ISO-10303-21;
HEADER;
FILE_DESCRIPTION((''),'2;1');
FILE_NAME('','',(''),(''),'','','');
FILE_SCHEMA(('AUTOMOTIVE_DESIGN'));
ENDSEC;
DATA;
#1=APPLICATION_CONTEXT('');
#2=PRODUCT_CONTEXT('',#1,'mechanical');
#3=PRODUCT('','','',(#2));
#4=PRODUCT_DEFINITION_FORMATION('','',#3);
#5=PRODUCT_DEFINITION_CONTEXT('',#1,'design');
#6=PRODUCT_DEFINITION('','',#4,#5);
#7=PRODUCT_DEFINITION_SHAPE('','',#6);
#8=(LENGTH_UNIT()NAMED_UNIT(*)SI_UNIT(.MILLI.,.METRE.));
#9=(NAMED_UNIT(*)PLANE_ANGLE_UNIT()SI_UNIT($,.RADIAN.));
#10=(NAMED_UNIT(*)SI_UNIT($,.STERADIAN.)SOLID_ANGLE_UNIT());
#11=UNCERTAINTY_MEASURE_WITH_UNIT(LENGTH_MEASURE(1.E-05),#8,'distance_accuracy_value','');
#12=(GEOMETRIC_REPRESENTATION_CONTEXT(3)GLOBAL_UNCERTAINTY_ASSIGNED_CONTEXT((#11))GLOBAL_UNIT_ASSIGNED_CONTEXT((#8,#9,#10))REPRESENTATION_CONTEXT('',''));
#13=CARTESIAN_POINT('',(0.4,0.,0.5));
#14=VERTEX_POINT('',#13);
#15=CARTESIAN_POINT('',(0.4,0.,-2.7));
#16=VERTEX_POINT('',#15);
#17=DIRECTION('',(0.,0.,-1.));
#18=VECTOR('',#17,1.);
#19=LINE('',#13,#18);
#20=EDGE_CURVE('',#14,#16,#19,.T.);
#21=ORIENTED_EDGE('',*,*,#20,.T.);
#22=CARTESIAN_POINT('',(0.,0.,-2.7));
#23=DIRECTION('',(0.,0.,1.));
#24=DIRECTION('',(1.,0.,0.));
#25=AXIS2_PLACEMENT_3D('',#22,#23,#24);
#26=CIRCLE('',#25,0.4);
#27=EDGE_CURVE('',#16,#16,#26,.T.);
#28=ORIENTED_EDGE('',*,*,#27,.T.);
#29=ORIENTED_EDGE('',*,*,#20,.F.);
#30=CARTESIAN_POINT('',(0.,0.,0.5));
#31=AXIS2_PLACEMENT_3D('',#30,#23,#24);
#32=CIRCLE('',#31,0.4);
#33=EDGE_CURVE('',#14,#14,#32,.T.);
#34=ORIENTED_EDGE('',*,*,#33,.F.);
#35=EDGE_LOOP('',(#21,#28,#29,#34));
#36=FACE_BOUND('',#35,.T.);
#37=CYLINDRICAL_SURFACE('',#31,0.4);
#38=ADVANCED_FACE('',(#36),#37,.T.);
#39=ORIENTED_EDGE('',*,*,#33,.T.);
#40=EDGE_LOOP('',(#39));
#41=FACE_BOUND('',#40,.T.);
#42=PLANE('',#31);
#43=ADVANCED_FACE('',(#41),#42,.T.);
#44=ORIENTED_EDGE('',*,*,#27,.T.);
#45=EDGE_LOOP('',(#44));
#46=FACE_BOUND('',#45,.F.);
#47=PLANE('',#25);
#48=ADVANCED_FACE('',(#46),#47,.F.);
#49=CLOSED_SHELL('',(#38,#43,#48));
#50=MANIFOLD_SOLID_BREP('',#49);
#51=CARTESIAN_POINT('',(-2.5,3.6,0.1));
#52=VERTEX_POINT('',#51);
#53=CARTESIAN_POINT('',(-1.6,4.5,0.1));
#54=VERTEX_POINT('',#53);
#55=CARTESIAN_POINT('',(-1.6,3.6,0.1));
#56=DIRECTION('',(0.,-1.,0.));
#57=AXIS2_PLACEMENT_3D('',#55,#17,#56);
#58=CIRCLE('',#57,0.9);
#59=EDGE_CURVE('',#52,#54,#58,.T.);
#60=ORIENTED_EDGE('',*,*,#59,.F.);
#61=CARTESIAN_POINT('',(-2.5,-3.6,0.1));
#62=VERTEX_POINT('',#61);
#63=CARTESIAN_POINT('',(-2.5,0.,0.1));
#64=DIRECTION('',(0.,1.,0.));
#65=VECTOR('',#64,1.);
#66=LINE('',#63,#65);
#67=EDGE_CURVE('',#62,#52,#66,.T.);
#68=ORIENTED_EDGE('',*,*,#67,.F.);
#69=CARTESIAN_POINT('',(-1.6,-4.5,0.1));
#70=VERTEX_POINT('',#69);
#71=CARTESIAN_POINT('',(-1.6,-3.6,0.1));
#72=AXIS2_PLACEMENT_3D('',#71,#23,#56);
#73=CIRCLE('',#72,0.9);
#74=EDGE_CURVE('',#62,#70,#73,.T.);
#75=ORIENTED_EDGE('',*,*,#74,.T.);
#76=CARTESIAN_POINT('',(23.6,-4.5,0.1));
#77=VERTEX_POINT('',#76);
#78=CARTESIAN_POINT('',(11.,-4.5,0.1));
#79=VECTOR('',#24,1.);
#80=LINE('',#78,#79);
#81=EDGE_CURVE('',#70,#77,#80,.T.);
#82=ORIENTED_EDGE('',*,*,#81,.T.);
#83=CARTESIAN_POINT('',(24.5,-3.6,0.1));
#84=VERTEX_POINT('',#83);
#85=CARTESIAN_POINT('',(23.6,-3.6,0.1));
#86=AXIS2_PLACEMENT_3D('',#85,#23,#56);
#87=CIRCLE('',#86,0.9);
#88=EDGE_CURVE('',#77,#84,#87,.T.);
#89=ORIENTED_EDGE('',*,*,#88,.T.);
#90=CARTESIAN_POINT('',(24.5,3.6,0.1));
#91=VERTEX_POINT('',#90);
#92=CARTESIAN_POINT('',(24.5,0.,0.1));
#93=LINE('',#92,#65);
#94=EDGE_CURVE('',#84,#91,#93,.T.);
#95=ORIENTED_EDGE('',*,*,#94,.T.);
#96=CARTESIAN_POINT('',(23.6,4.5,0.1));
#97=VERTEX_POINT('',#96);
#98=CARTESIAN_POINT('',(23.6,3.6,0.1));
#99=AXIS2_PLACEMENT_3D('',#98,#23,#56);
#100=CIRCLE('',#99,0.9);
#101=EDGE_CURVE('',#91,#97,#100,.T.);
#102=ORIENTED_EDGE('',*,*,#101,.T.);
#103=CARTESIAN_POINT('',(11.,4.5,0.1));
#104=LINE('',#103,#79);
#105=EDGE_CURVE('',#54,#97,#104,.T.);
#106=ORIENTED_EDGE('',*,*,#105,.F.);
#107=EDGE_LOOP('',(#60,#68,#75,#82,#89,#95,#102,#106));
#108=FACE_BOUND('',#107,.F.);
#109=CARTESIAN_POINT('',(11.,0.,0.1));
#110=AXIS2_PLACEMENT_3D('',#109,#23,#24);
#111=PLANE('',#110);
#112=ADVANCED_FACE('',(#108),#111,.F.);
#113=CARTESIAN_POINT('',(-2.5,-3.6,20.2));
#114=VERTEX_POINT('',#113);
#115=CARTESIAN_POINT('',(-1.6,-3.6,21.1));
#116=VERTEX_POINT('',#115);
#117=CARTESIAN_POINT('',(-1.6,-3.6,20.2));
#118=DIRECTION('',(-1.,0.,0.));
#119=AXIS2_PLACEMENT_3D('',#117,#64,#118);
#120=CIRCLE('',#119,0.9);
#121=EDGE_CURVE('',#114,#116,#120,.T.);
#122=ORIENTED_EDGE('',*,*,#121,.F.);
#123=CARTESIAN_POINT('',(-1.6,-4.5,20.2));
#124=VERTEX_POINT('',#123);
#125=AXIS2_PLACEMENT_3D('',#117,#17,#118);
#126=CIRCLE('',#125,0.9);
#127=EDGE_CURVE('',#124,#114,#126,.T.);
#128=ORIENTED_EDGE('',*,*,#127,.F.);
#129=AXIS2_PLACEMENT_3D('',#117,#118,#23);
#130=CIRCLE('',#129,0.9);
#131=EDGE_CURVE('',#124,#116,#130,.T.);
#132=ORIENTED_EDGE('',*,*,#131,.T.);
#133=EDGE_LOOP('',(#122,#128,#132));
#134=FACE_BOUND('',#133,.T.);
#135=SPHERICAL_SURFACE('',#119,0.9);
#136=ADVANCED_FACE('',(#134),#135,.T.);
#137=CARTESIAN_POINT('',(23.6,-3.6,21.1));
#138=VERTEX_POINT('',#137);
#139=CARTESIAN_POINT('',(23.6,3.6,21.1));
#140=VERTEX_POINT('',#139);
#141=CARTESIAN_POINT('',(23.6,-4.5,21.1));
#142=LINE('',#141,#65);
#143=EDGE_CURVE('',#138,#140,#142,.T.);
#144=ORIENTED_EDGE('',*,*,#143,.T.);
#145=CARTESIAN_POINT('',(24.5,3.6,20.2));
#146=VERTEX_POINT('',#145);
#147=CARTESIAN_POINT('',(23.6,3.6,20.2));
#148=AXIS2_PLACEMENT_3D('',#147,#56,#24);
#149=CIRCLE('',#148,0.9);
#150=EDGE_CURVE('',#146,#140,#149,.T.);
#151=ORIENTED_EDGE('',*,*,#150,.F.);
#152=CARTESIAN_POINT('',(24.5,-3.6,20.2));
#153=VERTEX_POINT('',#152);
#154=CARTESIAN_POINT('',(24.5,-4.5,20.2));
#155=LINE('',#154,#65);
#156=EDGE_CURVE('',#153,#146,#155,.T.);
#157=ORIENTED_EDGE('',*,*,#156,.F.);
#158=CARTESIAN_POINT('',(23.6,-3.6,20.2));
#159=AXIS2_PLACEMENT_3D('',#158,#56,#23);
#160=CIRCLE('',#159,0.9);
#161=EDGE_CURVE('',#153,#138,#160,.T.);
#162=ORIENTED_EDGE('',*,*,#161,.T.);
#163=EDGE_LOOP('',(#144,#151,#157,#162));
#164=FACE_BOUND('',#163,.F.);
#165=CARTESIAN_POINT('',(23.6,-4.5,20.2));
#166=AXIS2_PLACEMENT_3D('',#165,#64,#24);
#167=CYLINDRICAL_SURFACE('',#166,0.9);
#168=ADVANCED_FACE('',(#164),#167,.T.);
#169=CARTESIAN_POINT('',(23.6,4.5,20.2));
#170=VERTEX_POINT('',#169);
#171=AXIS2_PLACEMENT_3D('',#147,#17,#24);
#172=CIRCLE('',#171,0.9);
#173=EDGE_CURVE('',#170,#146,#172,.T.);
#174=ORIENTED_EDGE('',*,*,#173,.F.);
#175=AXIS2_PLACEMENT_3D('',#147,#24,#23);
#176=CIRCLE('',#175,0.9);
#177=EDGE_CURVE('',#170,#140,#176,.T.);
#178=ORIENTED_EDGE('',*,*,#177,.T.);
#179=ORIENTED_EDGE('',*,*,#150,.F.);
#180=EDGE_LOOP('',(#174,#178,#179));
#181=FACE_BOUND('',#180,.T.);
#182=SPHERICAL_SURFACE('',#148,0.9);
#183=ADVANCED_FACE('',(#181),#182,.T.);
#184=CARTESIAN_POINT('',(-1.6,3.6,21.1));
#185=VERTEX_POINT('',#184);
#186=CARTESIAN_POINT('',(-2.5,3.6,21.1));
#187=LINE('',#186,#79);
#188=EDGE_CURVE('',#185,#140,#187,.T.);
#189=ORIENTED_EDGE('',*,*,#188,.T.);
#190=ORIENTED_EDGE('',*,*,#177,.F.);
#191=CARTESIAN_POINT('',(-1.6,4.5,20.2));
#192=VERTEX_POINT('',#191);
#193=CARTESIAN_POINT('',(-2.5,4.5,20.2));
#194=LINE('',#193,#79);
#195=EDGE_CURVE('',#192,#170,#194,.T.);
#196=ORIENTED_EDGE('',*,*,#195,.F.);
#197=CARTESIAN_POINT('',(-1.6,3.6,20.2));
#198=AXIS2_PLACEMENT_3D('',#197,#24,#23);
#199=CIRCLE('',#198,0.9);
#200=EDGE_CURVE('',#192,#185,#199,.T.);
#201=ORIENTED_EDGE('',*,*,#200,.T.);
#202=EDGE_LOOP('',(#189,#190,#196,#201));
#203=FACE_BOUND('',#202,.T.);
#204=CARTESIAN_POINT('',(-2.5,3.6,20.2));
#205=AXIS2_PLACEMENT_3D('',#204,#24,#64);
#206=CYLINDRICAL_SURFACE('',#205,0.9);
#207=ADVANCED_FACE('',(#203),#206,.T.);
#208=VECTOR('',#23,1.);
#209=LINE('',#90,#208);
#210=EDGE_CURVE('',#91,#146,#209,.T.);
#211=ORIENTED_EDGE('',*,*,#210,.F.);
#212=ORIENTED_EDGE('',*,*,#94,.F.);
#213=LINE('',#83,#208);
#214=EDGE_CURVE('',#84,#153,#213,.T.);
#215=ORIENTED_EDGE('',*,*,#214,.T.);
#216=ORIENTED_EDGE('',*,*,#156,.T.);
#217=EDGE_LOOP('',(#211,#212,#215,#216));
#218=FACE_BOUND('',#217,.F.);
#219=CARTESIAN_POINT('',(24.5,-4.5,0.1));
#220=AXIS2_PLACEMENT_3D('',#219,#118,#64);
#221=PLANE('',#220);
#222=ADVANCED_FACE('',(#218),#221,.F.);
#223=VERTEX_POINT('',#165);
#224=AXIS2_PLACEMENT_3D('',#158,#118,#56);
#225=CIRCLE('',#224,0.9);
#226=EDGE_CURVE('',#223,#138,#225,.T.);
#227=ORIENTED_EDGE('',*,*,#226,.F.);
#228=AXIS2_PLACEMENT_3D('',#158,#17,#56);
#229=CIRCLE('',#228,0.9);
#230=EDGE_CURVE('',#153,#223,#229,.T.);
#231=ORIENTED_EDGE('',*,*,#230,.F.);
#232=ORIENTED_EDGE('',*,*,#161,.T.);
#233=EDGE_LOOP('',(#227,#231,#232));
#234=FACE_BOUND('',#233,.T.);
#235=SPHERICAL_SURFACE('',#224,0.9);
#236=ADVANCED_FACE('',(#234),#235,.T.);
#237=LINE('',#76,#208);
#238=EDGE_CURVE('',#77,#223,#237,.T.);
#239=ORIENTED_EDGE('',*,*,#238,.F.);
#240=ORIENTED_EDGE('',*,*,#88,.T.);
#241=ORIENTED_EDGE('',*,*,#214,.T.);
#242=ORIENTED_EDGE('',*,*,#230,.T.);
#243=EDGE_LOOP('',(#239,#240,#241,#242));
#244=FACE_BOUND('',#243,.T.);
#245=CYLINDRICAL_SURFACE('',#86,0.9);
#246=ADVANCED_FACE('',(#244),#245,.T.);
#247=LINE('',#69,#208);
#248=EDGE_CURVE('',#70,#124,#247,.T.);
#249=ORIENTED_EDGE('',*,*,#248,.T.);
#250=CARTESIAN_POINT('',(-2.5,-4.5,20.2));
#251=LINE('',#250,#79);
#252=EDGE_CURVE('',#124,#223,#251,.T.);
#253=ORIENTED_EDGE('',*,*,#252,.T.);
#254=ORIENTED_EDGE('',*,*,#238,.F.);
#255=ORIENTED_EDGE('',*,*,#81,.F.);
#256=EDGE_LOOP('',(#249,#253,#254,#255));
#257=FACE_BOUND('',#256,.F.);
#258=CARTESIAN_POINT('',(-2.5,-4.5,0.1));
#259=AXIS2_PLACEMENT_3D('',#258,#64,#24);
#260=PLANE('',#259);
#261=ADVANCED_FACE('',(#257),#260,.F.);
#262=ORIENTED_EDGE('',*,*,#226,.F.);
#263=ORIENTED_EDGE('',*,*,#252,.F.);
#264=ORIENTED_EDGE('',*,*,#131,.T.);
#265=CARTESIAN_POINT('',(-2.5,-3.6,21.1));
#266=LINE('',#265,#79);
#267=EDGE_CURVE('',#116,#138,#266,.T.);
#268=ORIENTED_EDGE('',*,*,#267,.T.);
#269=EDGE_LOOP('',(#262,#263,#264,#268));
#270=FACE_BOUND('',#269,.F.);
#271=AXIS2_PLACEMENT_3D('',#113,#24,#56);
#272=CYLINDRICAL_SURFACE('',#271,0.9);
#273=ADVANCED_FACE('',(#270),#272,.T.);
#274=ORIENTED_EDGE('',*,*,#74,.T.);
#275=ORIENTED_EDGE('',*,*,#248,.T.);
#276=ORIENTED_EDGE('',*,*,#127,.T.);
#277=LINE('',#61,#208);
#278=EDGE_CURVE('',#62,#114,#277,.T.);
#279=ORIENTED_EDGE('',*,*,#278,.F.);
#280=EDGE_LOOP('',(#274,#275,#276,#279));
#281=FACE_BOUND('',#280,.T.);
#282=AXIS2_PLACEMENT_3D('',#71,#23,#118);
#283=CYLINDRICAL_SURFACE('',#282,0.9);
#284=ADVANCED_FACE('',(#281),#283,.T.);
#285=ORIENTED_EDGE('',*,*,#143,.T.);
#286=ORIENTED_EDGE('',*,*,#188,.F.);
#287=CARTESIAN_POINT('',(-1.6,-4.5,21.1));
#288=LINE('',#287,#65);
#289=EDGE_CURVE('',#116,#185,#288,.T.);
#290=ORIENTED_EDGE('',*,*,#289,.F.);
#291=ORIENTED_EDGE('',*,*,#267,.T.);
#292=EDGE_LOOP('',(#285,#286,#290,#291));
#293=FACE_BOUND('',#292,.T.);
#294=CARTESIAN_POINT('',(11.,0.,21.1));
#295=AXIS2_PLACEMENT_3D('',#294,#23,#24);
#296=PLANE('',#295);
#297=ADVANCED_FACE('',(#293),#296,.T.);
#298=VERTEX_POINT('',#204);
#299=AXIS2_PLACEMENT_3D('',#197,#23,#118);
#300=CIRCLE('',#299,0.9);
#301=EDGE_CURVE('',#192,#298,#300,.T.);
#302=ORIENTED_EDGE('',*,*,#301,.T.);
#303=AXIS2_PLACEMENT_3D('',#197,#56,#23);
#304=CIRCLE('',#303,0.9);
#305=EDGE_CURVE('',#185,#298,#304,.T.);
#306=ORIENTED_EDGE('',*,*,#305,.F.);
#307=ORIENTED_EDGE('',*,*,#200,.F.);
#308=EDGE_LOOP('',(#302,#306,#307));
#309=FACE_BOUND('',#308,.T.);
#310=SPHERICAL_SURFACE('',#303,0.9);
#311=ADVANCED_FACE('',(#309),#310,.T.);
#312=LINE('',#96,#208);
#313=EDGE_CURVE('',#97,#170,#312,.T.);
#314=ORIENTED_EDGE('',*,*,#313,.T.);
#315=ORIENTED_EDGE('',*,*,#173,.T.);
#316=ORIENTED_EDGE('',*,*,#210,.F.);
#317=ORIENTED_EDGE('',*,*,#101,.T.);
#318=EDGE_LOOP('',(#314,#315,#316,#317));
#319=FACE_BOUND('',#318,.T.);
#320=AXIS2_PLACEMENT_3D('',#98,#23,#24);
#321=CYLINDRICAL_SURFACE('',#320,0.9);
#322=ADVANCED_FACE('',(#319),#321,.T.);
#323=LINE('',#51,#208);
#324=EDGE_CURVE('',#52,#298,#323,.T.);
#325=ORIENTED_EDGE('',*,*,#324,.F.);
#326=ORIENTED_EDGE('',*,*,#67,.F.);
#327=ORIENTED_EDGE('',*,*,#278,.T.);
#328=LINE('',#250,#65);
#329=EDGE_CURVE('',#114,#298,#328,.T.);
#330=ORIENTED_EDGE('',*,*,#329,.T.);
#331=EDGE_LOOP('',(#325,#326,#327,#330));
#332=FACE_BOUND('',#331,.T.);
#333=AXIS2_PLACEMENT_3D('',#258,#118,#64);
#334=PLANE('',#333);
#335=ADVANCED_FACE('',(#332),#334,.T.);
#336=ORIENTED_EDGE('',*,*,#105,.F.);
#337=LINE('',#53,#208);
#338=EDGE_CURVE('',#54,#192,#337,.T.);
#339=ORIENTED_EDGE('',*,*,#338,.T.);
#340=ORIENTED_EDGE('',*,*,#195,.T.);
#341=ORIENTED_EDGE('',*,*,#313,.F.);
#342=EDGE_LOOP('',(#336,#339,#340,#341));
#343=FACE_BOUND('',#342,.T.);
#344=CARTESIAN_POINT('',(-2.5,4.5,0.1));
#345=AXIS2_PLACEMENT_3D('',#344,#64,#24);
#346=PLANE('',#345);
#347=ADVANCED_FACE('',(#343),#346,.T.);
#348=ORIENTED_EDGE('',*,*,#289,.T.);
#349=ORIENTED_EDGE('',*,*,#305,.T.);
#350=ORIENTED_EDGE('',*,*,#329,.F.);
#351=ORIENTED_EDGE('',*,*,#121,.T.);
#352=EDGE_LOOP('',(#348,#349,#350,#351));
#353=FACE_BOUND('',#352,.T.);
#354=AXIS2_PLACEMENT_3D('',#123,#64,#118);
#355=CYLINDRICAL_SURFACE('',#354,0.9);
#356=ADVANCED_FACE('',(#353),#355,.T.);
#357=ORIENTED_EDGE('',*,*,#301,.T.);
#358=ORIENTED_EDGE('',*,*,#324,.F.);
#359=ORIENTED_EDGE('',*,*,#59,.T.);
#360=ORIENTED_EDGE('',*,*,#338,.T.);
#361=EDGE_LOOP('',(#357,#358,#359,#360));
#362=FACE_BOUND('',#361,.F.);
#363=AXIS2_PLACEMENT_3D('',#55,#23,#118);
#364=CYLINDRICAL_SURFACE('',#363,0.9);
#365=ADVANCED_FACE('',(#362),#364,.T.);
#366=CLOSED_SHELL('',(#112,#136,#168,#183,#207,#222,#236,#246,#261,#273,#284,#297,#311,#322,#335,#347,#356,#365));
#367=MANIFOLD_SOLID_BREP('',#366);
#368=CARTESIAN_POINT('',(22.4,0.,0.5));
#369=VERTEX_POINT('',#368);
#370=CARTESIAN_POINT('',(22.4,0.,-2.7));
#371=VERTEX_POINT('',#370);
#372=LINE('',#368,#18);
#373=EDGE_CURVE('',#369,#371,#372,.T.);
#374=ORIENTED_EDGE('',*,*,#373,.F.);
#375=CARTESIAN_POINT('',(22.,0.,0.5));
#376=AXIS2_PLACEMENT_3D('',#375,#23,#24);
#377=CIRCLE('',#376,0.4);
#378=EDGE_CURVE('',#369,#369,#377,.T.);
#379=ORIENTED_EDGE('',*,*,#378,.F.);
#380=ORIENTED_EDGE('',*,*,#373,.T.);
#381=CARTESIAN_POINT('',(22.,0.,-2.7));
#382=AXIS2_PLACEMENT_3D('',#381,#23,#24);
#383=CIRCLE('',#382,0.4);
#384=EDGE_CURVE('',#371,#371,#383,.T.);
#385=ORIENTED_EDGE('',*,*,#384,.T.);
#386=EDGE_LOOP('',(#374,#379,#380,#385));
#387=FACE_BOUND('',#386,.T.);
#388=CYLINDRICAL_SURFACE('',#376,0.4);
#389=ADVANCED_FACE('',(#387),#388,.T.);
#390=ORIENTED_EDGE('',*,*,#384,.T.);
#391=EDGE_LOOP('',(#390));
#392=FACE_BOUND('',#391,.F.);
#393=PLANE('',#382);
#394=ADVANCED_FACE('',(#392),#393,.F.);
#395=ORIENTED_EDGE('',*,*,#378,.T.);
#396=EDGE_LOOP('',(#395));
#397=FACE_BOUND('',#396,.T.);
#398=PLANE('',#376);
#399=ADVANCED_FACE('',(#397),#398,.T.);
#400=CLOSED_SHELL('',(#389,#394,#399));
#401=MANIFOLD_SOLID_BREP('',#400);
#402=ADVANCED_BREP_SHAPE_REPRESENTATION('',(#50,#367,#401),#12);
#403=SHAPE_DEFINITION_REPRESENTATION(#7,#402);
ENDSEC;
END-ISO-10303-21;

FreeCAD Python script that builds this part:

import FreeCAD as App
import Part
import Sketcher


def edges_at(feature, points):
    """Names of the edges that pass closest to the given points."""
    edges = feature.Shape.Edges
    near = lambda p: min(range(len(edges)), key=lambda i: edges[i].distToShape(Part.Vertex(*p))[0])
    return sorted({f"Edge{near(p) + 1}" for p in points})


def add_polygon(sketch, points):
    """Adds a closed chain of lines whose ends are joined by coincident constraints."""
    first, n = sketch.GeometryCount, len(points)
    for a, b in zip(points, points[1:] + points[:1]):
        sketch.addGeometry(Part.LineSegment(App.Vector(*a, 0), App.Vector(*b, 0)), False)
    for i in range(n):
        sketch.addConstraint(Sketcher.Constraint("Coincident", first + i, 2, first + (i + 1) % n, 1))

doc = App.newDocument("Part")
body = doc.addObject("PartDesign::Body", "Body")

sketch1 = doc.addObject("Sketcher::SketchObject", "Sketch")
body.addObject(sketch1)
sketch1.AttachmentSupport = (doc.XY_Plane, [""])
sketch1.MapMode = "FlatFace"
sketch1.AttachmentOffset = App.Placement(App.Vector(0, 0, 0.1), App.Rotation())
add_polygon(sketch1, [(-2, 4), (-2, -4), (24, -4), (24, 4)])
sketch1.addConstraint([
    Sketcher.Constraint("Vertical", 0),
    Sketcher.Constraint("Horizontal", 1),
    Sketcher.Constraint("Vertical", 2),
    Sketcher.Constraint("Horizontal", 3),
    Sketcher.Constraint("DistanceX", 1, 1, 1, 2, 27.0),
    Sketcher.Constraint("DistanceY", 0, 2, 0, 1, 9.0),
    Sketcher.Constraint("DistanceX", 0, 2, -1, 1, 2.5),
    Sketcher.Constraint("DistanceY", 0, 2, -1, 1, 4.5),
])
pad1 = doc.addObject("PartDesign::Pad", "Pad")
body.addObject(pad1)
pad1.Profile = sketch1
pad1.Length = 21
doc.recompute()

fillet = doc.addObject("PartDesign::Fillet", "Fillet")
body.addObject(fillet)
fillet.Base = (pad1, edges_at(pad1, [
    (-2.5, 0, 21.1),
    (-2.5, -4.5, 10.6),
    (11, -4.5, 21.1),
    (24.5, -4.5, 10.6),
    (24.5, 0, 21.1),
    (24.5, 4.5, 10.6),
    (11, 4.5, 21.1),
    (-2.5, 4.5, 10.6),
]))
fillet.Radius = 0.9
body2 = doc.addObject("PartDesign::Body", "Body001")
body2.AllowCompound = True

sketch2 = doc.addObject("Sketcher::SketchObject", "Sketch001")
body2.addObject(sketch2)
sketch2.AttachmentSupport = (doc.getObject("XY_Plane001"), [""])
sketch2.MapMode = "FlatFace"
sketch2.AttachmentOffset = App.Placement(App.Vector(0, 0, 0.5), App.Rotation())
sketch2.addGeometry([
    Part.Circle(App.Vector(0, 0, 0), App.Vector(0, 0, 1), 0.4),
    Part.Circle(App.Vector(22, 0, 0), App.Vector(0, 0, 1), 0.4),
], False)
sketch2.addConstraint([
    Sketcher.Constraint("Coincident", 0, 3, -1, 1),
    Sketcher.Constraint("Equal", 0, 1),
    Sketcher.Constraint("PointOnObject", 1, 3, -1),
    Sketcher.Constraint("Diameter", 0, 0.8),
    Sketcher.Constraint("DistanceX", -1, 1, 1, 3, 22.0),
])
pad2 = doc.addObject("PartDesign::Pad", "Pad001")
body2.addObject(pad2)
pad2.Profile = sketch2
pad2.Length = 3.2
pad2.Reversed = True

doc.recompute()
